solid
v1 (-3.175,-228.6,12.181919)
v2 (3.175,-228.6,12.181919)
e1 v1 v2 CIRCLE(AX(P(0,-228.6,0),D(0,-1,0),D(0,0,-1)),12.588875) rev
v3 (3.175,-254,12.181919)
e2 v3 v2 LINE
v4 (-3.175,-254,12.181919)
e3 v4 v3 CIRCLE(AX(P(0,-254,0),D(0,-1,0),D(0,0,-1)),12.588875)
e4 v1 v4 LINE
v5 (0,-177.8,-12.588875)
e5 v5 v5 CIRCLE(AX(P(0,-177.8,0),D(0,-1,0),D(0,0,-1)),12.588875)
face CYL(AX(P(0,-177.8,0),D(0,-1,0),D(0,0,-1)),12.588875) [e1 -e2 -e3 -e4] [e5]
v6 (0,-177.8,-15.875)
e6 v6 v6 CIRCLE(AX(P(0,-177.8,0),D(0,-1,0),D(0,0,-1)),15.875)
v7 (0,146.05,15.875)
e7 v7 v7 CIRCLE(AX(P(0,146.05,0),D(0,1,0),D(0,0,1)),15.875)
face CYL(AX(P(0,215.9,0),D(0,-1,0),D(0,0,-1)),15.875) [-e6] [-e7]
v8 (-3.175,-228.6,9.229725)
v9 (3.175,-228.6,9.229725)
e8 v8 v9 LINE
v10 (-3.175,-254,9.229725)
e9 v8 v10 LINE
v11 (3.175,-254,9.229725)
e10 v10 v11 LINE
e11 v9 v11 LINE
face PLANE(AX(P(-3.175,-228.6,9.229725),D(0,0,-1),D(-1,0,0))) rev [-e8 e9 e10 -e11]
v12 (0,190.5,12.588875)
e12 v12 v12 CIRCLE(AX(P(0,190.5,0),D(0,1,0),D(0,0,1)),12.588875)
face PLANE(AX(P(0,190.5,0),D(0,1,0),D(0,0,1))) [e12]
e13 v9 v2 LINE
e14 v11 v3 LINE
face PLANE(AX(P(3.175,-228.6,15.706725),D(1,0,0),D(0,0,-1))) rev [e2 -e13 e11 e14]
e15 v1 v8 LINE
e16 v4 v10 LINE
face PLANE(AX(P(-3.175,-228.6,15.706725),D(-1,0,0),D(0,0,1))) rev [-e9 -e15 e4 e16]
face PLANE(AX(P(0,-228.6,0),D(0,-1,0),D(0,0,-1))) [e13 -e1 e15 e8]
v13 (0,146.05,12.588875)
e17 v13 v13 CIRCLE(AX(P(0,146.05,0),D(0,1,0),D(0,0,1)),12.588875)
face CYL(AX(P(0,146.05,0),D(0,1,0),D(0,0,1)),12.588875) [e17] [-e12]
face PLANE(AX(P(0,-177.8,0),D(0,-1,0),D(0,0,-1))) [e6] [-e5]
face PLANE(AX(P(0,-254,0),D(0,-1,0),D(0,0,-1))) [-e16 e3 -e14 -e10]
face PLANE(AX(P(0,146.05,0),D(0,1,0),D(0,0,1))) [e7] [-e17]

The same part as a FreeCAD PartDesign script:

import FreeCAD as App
import Part
import Sketcher

V = App.Vector
Q = App.Units.Quantity


def add_polygon(sketch, points):
    """Adds a closed chain of lines whose ends are joined by coincident constraints."""
    first, n = sketch.GeometryCount, len(points)
    for a, b in zip(points, points[1:] + points[:1]):
        sketch.addGeometry(Part.LineSegment(App.Vector(*a, 0), App.Vector(*b, 0)), False)
    for i in range(n):
        sketch.addConstraint(Sketcher.Constraint("Coincident", first + i, 2, first + (i + 1) % n, 1))

doc = App.newDocument("Part")
body = doc.addObject("PartDesign::Body", "Body")

# Sketch on XZ plane
sketch1 = body.newObject("Sketcher::SketchObject", "Sketch")
sketch1.AttachmentSupport = (doc.getObject("XZ_Plane"), [""])
sketch1.MapMode = "FlatFace"
sketch1.addGeometry(Part.Circle(V(0, 0, 0), V(0, 0, 1), 15.875), False)
sketch1.addConstraint(Sketcher.Constraint("Coincident", 0, 3, -1, 1))
sketch1.addConstraint(Sketcher.Constraint("Diameter", 0, Q("1.25 in")))
pad1 = body.newObject("PartDesign::Pad", "Pad")
pad1.Profile = sketch1
pad1.Length = Q("17 in")
pad1.Midplane = True

# Sketch on XZ plane
sketch2 = body.newObject("Sketcher::SketchObject", "Sketch001")
sketch2.AttachmentSupport = (doc.getObject("XZ_Plane"), [""])
sketch2.MapMode = "FlatFace"
sketch2.AttachmentOffset = App.Placement(V(0, 0, -8.5 * 25.4), App.Rotation())
sketch2.addGeometry(Part.Circle(V(0, 0, 0), V(0, 0, 1), 15.875), False)
sketch2.addGeometry(Part.Circle(V(0, 0, 0), V(0, 0, 1), 12.588875), False)
sketch2.addConstraint(Sketcher.Constraint("Coincident", 0, 3, -1, 1))
sketch2.addConstraint(Sketcher.Constraint("Coincident", 1, 3, -1, 1))
sketch2.addConstraint(Sketcher.Constraint("Diameter", 0, Q("1.25 in")))
sketch2.addConstraint(Sketcher.Constraint("Diameter", 1, 25.17775))
pocket1 = body.newObject("PartDesign::Pocket", "Pocket")
pocket1.Profile = sketch2
pocket1.Length = Q("2.75 in")
pocket1.Reversed = True

# Sketch on XZ plane
sketch3 = body.newObject("Sketcher::SketchObject", "Sketch002")
sketch3.AttachmentSupport = (doc.getObject("XZ_Plane"), [""])
sketch3.MapMode = "FlatFace"
sketch3.AttachmentOffset = App.Placement(V(0, 0, 7 * 25.4), App.Rotation())
sketch3.addGeometry(Part.Circle(V(0, 0, 0), V(0, 0, 1), 15.875), False)
sketch3.addGeometry(Part.Circle(V(0, 0, 0), V(0, 0, 1), 12.588875), False)
sketch3.addConstraint(Sketcher.Constraint("Coincident", 0, 3, -1, 1))
sketch3.addConstraint(Sketcher.Constraint("Coincident", 1, 3, -1, 1))
sketch3.addConstraint(Sketcher.Constraint("Diameter", 0, Q("1.25 in")))
sketch3.addConstraint(Sketcher.Constraint("Diameter", 1, 25.17775))
pocket2 = body.newObject("PartDesign::Pocket", "Pocket001")
pocket2.Profile = sketch3
pocket2.Length = Q("1.5 in")
pocket2.Reversed = True

# Sketch on XZ plane
sketch4 = body.newObject("Sketcher::SketchObject", "Sketch003")
sketch4.AttachmentSupport = (doc.getObject("XZ_Plane"), [""])
sketch4.MapMode = "FlatFace"
sketch4.AttachmentOffset = App.Placement(V(0, 0, 8.5 * 25.4), App.Rotation())
sketch4.addGeometry(Part.Circle(V(0, 0, 0), V(0, 0, 1), 12.588875), False)
sketch4.addConstraint(Sketcher.Constraint("Coincident", 0, 3, -1, 1))
sketch4.addConstraint(Sketcher.Constraint("Diameter", 0, 25.17775))
pad2 = body.newObject("PartDesign::Pad", "Pad001")
pad2.Profile = sketch4
pad2.Length = Q("1.5 in")

# Sketch on XZ plane
sketch5 = body.newObject("Sketcher::SketchObject", "Sketch004")
sketch5.AttachmentSupport = (doc.getObject("XZ_Plane"), [""])
sketch5.MapMode = "FlatFace"
sketch5.AttachmentOffset = App.Placement(V(0, 0, 10 * 25.4), App.Rotation())
add_polygon(sketch5, [(-3.175, 15.706725), (-3.175, 9.229725), (3.175, 9.229725), (3.175, 15.706725)])  # lines 0-3
sketch5.addConstraint(Sketcher.Constraint("Vertical", 0))
sketch5.addConstraint(Sketcher.Constraint("Horizontal", 1))
sketch5.addConstraint(Sketcher.Constraint("Vertical", 2))
sketch5.addConstraint(Sketcher.Constraint("Horizontal", 3))
sketch5.addConstraint(Sketcher.Constraint("DistanceX", 1, 1, 1, 2, Q("0.25 in")))
sketch5.addConstraint(Sketcher.Constraint("DistanceY", 0, 2, 0, 1, Q("0.255 in")))
sketch5.addConstraint(Sketcher.Constraint("DistanceX", 0, 2, -1, 1, Q("0.125 in")))
sketch5.addConstraint(Sketcher.Constraint("DistanceY", -1, 1, 0, 2, 9.229725))
pocket3 = body.newObject("PartDesign::Pocket", "Pocket002")
pocket3.Profile = sketch5
pocket3.Length = Q("1 in")

# Sketch on XZ plane
sketch6 = body.newObject("Sketcher::SketchObject", "Sketch005")
sketch6.AttachmentSupport = (doc.getObject("XZ_Plane"), [""])
sketch6.MapMode = "FlatFace"
sketch6.AttachmentOffset = App.Placement(V(0, 0, -8.5 * 25.4), App.Rotation())
sketch6.addGeometry(Part.Circle(V(0, 0, 0), V(0, 0, 1), 12.588875), False)
sketch6.addConstraint(Sketcher.Constraint("Coincident", 0, 3, -1, 1))
sketch6.addConstraint(Sketcher.Constraint("Diameter", 0, 25.17775))
pocket4 = body.newObject("PartDesign::Pocket", "Pocket003")
pocket4.Profile = sketch6
pocket4.Length = Q("1 in")
pocket4.Reversed = True

doc.recompute()
